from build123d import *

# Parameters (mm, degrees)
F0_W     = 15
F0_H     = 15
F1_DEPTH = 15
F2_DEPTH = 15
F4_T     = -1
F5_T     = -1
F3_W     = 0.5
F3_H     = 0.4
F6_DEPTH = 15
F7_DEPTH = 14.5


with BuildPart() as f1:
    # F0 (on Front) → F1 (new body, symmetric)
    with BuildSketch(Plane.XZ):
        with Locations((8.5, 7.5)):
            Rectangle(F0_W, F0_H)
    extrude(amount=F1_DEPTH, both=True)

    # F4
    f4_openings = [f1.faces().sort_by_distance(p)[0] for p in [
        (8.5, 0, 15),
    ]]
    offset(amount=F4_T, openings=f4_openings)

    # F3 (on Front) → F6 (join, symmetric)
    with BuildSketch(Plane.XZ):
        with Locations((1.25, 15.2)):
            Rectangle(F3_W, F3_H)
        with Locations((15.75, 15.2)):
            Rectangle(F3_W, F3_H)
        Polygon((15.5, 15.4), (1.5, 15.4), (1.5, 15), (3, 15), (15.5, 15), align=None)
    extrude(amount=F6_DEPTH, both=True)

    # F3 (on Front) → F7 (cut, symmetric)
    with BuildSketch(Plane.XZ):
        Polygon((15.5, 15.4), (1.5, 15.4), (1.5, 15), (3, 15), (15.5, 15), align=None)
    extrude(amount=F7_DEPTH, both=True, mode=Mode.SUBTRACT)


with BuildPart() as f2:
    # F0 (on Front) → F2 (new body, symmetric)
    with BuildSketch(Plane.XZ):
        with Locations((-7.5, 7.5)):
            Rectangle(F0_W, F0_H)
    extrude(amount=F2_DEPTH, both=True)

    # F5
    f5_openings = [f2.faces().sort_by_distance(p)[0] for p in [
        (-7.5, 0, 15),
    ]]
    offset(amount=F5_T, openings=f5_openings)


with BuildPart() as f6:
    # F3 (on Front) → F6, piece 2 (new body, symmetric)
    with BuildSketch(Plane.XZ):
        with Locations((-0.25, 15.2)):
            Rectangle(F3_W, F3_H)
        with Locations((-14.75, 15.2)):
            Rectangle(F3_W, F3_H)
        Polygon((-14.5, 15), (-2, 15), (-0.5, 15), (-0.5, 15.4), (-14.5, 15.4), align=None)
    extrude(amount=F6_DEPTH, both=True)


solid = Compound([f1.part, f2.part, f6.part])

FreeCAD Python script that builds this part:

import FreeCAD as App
import Part
import Sketcher

V = App.Vector
Q = App.Units.Quantity


def faces_at(feature, points):
    """Names of the faces that lie closest to the given points."""
    faces = feature.Shape.Faces
    near = lambda p: min(range(len(faces)), key=lambda i: faces[i].distToShape(Part.Vertex(*p))[0])
    return sorted({f"Face{near(p) + 1}" for p in points})

doc = App.newDocument("Part")
body = doc.addObject("PartDesign::Body", "Body")

# Sketch on XZ plane
sketch1 = body.newObject("Sketcher::SketchObject", "Sketch")
sketch1.AttachmentSupport = (doc.getObject("XZ_Plane"), [""])
sketch1.MapMode = "FlatFace"
sketch1.addGeometry(Part.LineSegment(V(1, 15, 0), V(1, 0, 0)), False)
sketch1.addGeometry(Part.LineSegment(V(1, 0, 0), V(16, 0, 0)), False)
sketch1.addGeometry(Part.LineSegment(V(16, 0, 0), V(16, 15, 0)), False)
sketch1.addGeometry(Part.LineSegment(V(16, 15, 0), V(1, 15, 0)), False)
sketch1.addConstraint(Sketcher.Constraint("Coincident", 0, 2, 1, 1))
sketch1.addConstraint(Sketcher.Constraint("Coincident", 1, 2, 2, 1))
sketch1.addConstraint(Sketcher.Constraint("Coincident", 2, 2, 3, 1))
sketch1.addConstraint(Sketcher.Constraint("Coincident", 3, 2, 0, 1))
sketch1.addConstraint(Sketcher.Constraint("Vertical", 0))
sketch1.addConstraint(Sketcher.Constraint("Horizontal", 1))
sketch1.addConstraint(Sketcher.Constraint("Vertical", 2))
sketch1.addConstraint(Sketcher.Constraint("Horizontal", 3))
sketch1.addConstraint(Sketcher.Constraint("PointOnObject", 0, 2, -1))
sketch1.addConstraint(Sketcher.Constraint("Equal", 3, 0))
sketch1.addConstraint(Sketcher.Constraint("DistanceX", 1, 1, 1, 2, Q("15 mm")))
sketch1.addConstraint(Sketcher.Constraint("DistanceX", -1, 1, 0, 2, Q("1 mm")))
pad1 = body.newObject("PartDesign::Pad", "Pad")
pad1.Profile = sketch1
pad1.Length = 30
pad1.Midplane = True
doc.recompute()

thickness = body.newObject("PartDesign::Thickness", "Thickness")
thickness.Base = (pad1, faces_at(pad1, [(8.5, 0, 15)]))
thickness.Value = 1
thickness.Reversed = True
thickness.Join = "Arc"

# Sketch on XZ plane
sketch2 = body.newObject("Sketcher::SketchObject", "Sketch001")
sketch2.AttachmentSupport = (doc.getObject("XZ_Plane"), [""])
sketch2.MapMode = "FlatFace"
sketch2.addGeometry(Part.LineSegment(V(1, 15.4, 0), V(1, 15, 0)), False)
sketch2.addGeometry(Part.LineSegment(V(1, 15, 0), V(16, 15, 0)), False)
sketch2.addGeometry(Part.LineSegment(V(16, 15, 0), V(16, 15.4, 0)), False)
sketch2.addGeometry(Part.LineSegment(V(16, 15.4, 0), V(1, 15.4, 0)), False)
sketch2.addConstraint(Sketcher.Constraint("Coincident", 0, 2, 1, 1))
sketch2.addConstraint(Sketcher.Constraint("Coincident", 1, 2, 2, 1))
sketch2.addConstraint(Sketcher.Constraint("Coincident", 2, 2, 3, 1))
sketch2.addConstraint(Sketcher.Constraint("Coincident", 3, 2, 0, 1))
sketch2.addConstraint(Sketcher.Constraint("Vertical", 0))
sketch2.addConstraint(Sketcher.Constraint("Horizontal", 1))
sketch2.addConstraint(Sketcher.Constraint("Vertical", 2))
sketch2.addConstraint(Sketcher.Constraint("Horizontal", 3))
sketch2.addConstraint(Sketcher.Constraint("DistanceX", 1, 1, 1, 2, Q("15 mm")))
sketch2.addConstraint(Sketcher.Constraint("DistanceY", 0, 2, 0, 1, Q("0.4 mm")))
sketch2.addConstraint(Sketcher.Constraint("DistanceX", -1, 1, 0, 2, Q("1 mm")))
sketch2.addConstraint(Sketcher.Constraint("DistanceY", -1, 1, 0, 2, Q("15 mm")))
pad2 = body.newObject("PartDesign::Pad", "Pad001")
pad2.Profile = sketch2
pad2.Length = 30
pad2.Midplane = True

# Sketch on XZ plane
sketch3 = body.newObject("Sketcher::SketchObject", "Sketch002")
sketch3.AttachmentSupport = (doc.getObject("XZ_Plane"), [""])
sketch3.MapMode = "FlatFace"
sketch3.addGeometry(Part.LineSegment(V(15.5, 15.4, 0), V(1.5, 15.4, 0)), False)
sketch3.addGeometry(Part.LineSegment(V(1.5, 15.4, 0), V(1.5, 15, 0)), False)
sketch3.addGeometry(Part.LineSegment(V(1.5, 15, 0), V(15.5, 15, 0)), False)
sketch3.addGeometry(Part.LineSegment(V(15.5, 15, 0), V(15.5, 15.4, 0)), False)
sketch3.addConstraint(Sketcher.Constraint("Coincident", 0, 2, 1, 1))
sketch3.addConstraint(Sketcher.Constraint("Coincident", 1, 2, 2, 1))
sketch3.addConstraint(Sketcher.Constraint("Coincident", 2, 2, 3, 1))
sketch3.addConstraint(Sketcher.Constraint("Coincident", 3, 2, 0, 1))
sketch3.addConstraint(Sketcher.Constraint("Horizontal", 0))
sketch3.addConstraint(Sketcher.Constraint("Vertical", 1))
sketch3.addConstraint(Sketcher.Constraint("Horizontal", 2))
sketch3.addConstraint(Sketcher.Constraint("Vertical", 3))
sketch3.addConstraint(Sketcher.Constraint("DistanceX", 0, 2, 0, 1, Q("14 mm")))
sketch3.addConstraint(Sketcher.Constraint("DistanceY", 1, 2, 1, 1, Q("0.4 mm")))
sketch3.addConstraint(Sketcher.Constraint("DistanceY", -1, 1, 1, 2, Q("15 mm")))
sketch3.addConstraint(Sketcher.Constraint("DistanceX", -1, 1, 0, 2, Q("1.5 mm")))
pocket1 = body.newObject("PartDesign::Pocket", "Pocket")
pocket1.Profile = sketch3
pocket1.Length = 29
pocket1.Midplane = True
body2 = doc.addObject("PartDesign::Body", "Body001")

# Sketch on XZ plane
sketch4 = body2.newObject("Sketcher::SketchObject", "Sketch003")
sketch4.AttachmentSupport = (doc.getObject("XZ_Plane001"), [""])
sketch4.MapMode = "FlatFace"
sketch4.addGeometry(Part.LineSegment(V(-15, 15, 0), V(-15, 0, 0)), False)
sketch4.addGeometry(Part.LineSegment(V(-15, 0, 0), V(0, 0, 0)), False)
sketch4.addGeometry(Part.LineSegment(V(0, 0, 0), V(0, 15, 0)), False)
sketch4.addGeometry(Part.LineSegment(V(0, 15, 0), V(-15, 15, 0)), False)
sketch4.addConstraint(Sketcher.Constraint("Coincident", 0, 2, 1, 1))
sketch4.addConstraint(Sketcher.Constraint("Coincident", 1, 2, 2, 1))
sketch4.addConstraint(Sketcher.Constraint("Coincident", 2, 2, 3, 1))
sketch4.addConstraint(Sketcher.Constraint("Coincident", 3, 2, 0, 1))
sketch4.addConstraint(Sketcher.Constraint("Vertical", 0))
sketch4.addConstraint(Sketcher.Constraint("Horizontal", 1))
sketch4.addConstraint(Sketcher.Constraint("Vertical", 2))
sketch4.addConstraint(Sketcher.Constraint("Horizontal", 3))
sketch4.addConstraint(Sketcher.Constraint("Coincident", 1, 2, -1, 1))
sketch4.addConstraint(Sketcher.Constraint("Equal", 3, 0))
sketch4.addConstraint(Sketcher.Constraint("DistanceX", 1, 1, 1, 2, Q("15 mm")))
pad3 = body2.newObject("PartDesign::Pad", "Pad002")
pad3.Profile = sketch4
pad3.Length = 30
pad3.Midplane = True
doc.recompute()

thickness2 = body2.newObject("PartDesign::Thickness", "Thickness001")
thickness2.Base = (pad3, faces_at(pad3, [(-7.5, 0, 15)]))
thickness2.Value = 1
thickness2.Reversed = True
thickness2.Join = "Arc"
body3 = doc.addObject("PartDesign::Body", "Body002")

# Sketch on XZ plane
sketch5 = body3.newObject("Sketcher::SketchObject", "Sketch004")
sketch5.AttachmentSupport = (doc.getObject("XZ_Plane002"), [""])
sketch5.MapMode = "FlatFace"
sketch5.addGeometry(Part.LineSegment(V(0, 15, 0), V(0, 15.4, 0)), False)
sketch5.addGeometry(Part.LineSegment(V(0, 15.4, 0), V(-15, 15.4, 0)), False)
sketch5.addGeometry(Part.LineSegment(V(-15, 15.4, 0), V(-15, 15, 0)), False)
sketch5.addGeometry(Part.LineSegment(V(-15, 15, 0), V(0, 15, 0)), False)
sketch5.addConstraint(Sketcher.Constraint("Coincident", 0, 2, 1, 1))
sketch5.addConstraint(Sketcher.Constraint("Coincident", 1, 2, 2, 1))
sketch5.addConstraint(Sketcher.Constraint("Coincident", 2, 2, 3, 1))
sketch5.addConstraint(Sketcher.Constraint("Coincident", 3, 2, 0, 1))
sketch5.addConstraint(Sketcher.Constraint("Vertical", 0))
sketch5.addConstraint(Sketcher.Constraint("Horizontal", 1))
sketch5.addConstraint(Sketcher.Constraint("Vertical", 2))
sketch5.addConstraint(Sketcher.Constraint("Horizontal", 3))
sketch5.addConstraint(Sketcher.Constraint("PointOnObject", 0, 2, -2))
sketch5.addConstraint(Sketcher.Constraint("DistanceX", 1, 2, 1, 1, Q("15 mm")))
sketch5.addConstraint(Sketcher.Constraint("DistanceY", 0, 1, 0, 2, Q("0.4 mm")))
sketch5.addConstraint(Sketcher.Constraint("DistanceY", -1, 1, 2, 2, Q("15 mm")))
pad4 = body3.newObject("PartDesign::Pad", "Pad003")
pad4.Profile = sketch5
pad4.Length = 30
pad4.Midplane = True

doc.recompute()
